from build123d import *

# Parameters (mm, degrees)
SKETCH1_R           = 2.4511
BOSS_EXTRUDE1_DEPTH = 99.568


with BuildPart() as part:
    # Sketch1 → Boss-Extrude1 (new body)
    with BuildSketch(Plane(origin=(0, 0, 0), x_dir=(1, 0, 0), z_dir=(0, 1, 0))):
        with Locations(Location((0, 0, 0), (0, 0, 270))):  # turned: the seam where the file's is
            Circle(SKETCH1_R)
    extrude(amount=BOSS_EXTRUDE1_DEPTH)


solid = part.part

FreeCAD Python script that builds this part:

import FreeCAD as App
import Part
import Sketcher
Q = App.Units.Quantity

doc = App.newDocument("Part")
body = doc.addObject("PartDesign::Body", "Body")

# Sketch on XZ plane
sketch1 = body.newObject("Sketcher::SketchObject", "Sketch")
sketch1.AttachmentSupport = (doc.getObject("XZ_Plane"), [""])
sketch1.MapMode = "FlatFace"
sketch1.addGeometry(Part.Circle(App.Vector(0, 0, 0), App.Vector(0, 0, 1), 2.5), False)
sketch1.addConstraint([
    Sketcher.Constraint("Coincident", 0, 3, -1, 1),
    Sketcher.Constraint("Diameter", 0, Q("0.193 in")),
])
pad1 = body.newObject("PartDesign::Pad", "Pad")
pad1.Profile = sketch1
pad1.Length = Q("3.92 in")
pad1.Reversed = True

doc.recompute()
